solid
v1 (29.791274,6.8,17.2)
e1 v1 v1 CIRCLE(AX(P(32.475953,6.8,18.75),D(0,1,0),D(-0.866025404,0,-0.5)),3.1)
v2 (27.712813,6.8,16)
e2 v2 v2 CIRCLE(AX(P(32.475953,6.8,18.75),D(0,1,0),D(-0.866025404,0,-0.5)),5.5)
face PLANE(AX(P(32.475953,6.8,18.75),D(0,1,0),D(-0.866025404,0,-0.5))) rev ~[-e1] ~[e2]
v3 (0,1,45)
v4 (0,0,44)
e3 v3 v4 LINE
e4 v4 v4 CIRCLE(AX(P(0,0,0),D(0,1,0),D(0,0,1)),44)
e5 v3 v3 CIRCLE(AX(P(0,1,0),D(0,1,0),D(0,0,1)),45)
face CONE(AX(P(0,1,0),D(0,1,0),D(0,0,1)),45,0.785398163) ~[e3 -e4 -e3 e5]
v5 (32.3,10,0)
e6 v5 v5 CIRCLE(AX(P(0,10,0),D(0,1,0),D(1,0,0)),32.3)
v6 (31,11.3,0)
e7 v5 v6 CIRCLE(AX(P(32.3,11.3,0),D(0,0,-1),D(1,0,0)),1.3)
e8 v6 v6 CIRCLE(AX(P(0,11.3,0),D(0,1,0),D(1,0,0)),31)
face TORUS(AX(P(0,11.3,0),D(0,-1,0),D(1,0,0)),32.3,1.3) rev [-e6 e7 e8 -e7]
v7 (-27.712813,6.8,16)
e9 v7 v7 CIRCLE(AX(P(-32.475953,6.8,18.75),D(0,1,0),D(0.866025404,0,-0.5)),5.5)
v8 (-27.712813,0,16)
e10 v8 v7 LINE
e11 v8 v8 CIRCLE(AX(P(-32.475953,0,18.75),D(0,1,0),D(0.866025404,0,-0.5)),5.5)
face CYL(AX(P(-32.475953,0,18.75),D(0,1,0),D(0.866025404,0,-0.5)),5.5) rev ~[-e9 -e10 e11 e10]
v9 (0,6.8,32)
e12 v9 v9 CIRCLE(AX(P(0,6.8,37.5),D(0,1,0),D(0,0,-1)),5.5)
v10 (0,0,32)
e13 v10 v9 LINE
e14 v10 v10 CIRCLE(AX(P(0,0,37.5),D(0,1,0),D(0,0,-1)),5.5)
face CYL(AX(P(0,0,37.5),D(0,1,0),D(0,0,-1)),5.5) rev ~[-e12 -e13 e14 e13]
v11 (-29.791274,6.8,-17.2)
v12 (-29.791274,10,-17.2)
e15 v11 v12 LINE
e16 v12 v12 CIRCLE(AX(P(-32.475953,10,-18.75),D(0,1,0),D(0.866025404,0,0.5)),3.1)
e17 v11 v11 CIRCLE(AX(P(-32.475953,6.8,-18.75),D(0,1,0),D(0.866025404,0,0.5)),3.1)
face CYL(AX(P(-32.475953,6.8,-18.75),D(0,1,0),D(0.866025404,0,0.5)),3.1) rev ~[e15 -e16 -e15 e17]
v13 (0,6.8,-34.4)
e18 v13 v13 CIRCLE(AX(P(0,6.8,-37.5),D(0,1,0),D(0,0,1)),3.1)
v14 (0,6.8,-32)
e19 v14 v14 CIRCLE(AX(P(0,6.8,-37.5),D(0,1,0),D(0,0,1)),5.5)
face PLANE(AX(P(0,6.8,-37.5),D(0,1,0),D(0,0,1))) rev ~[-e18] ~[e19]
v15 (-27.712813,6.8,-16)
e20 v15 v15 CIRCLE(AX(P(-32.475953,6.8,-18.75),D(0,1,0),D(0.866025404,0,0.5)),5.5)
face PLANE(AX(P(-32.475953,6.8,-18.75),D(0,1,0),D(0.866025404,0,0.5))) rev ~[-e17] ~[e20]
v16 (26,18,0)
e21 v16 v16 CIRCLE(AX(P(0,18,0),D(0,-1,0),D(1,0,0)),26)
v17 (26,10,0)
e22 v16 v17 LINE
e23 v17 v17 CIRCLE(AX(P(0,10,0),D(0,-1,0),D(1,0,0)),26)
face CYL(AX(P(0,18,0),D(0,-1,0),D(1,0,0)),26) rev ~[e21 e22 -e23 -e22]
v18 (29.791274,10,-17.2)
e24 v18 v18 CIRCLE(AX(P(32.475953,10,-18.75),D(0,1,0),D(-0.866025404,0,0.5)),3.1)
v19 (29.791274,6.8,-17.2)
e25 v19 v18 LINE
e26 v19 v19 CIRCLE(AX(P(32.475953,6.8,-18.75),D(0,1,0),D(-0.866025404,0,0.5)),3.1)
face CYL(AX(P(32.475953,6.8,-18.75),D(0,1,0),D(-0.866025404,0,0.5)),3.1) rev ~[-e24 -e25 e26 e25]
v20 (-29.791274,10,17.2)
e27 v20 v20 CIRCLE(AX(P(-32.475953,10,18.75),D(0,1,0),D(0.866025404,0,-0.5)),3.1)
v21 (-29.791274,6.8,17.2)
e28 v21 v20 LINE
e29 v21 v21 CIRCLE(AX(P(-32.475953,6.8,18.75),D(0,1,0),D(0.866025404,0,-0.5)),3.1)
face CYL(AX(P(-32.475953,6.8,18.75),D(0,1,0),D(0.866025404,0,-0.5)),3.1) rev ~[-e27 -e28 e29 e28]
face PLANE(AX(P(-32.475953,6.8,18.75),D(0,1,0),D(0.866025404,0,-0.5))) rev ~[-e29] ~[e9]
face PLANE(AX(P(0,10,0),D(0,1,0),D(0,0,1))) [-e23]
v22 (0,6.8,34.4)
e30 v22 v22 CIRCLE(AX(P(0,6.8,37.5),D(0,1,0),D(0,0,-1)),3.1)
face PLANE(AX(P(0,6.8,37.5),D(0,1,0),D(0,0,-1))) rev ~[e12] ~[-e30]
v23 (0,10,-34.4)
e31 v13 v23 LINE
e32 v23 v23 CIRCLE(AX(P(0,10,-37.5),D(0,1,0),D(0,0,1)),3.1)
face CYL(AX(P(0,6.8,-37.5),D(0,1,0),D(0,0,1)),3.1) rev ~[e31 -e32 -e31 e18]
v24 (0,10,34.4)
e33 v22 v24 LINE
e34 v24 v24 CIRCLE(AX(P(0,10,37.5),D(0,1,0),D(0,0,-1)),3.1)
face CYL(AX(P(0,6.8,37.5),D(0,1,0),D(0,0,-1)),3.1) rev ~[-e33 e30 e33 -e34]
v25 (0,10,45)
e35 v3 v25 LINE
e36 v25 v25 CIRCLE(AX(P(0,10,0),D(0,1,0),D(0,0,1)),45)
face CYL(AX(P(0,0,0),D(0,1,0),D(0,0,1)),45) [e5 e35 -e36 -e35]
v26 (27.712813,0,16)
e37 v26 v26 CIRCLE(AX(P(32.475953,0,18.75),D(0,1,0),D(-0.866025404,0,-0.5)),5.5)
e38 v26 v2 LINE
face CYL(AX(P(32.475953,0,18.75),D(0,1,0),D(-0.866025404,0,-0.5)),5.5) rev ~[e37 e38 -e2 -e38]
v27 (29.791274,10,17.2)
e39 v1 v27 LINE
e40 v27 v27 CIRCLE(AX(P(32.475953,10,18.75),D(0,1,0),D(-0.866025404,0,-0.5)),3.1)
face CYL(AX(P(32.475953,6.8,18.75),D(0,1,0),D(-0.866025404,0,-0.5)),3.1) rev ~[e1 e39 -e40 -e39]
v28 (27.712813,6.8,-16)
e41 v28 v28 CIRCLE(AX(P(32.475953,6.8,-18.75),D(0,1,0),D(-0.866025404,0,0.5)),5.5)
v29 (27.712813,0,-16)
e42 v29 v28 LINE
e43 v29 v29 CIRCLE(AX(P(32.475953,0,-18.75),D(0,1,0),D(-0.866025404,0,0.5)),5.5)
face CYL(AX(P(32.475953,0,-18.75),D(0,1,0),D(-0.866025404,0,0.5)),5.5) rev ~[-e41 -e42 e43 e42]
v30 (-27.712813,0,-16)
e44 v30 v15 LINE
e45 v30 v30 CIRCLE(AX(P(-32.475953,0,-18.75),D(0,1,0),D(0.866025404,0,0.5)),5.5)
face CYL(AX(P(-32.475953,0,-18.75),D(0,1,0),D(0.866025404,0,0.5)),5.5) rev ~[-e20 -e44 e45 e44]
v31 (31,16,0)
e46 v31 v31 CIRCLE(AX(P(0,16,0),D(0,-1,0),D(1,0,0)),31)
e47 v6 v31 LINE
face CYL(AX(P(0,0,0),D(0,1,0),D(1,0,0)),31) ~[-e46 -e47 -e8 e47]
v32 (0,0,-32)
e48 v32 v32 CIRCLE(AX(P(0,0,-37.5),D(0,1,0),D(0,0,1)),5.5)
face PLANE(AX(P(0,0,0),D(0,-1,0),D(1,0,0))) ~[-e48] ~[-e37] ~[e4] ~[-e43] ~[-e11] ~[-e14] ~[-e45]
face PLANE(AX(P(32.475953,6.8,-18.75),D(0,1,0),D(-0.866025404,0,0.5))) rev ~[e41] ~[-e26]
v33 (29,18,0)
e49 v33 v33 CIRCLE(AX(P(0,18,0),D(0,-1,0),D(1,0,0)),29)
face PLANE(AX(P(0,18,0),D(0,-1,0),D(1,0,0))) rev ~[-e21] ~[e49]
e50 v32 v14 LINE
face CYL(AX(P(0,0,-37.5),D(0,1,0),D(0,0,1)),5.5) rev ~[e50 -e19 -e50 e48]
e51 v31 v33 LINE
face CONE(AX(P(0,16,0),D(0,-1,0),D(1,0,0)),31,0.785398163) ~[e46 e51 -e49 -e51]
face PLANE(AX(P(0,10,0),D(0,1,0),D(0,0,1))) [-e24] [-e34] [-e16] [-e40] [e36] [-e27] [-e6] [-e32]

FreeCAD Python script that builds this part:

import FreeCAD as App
import Part
import Sketcher


def edges_at(feature, points):
    """Names of the edges that pass closest to the given points."""
    edges = feature.Shape.Edges
    near = lambda p: min(range(len(edges)), key=lambda i: edges[i].distToShape(Part.Vertex(*p))[0])
    return sorted({f"Edge{near(p) + 1}" for p in points})

doc = App.newDocument("Part")
body = doc.addObject("PartDesign::Body", "Body")

sketch1 = doc.addObject("Sketcher::SketchObject", "Sketch")
body.addObject(sketch1)
sketch1.AttachmentSupport = (doc.XY_Plane, [""])
sketch1.MapMode = "FlatFace"
sketch1.addGeometry(Part.LineSegment(App.Vector(26, 5, 0), App.Vector(0, 5, 0)), False)
sketch1.addGeometry(Part.LineSegment(App.Vector(0, 5, 0), App.Vector(0, 0, 0)), False)
sketch1.addGeometry(Part.LineSegment(App.Vector(0, 0, 0), App.Vector(31, 0, 0)), False)
sketch1.addGeometry(Part.LineSegment(App.Vector(31, 0, 0), App.Vector(31, 18, 0)), False)
sketch1.addGeometry(Part.LineSegment(App.Vector(31, 18, 0), App.Vector(26, 18, 0)), False)
sketch1.addGeometry(Part.LineSegment(App.Vector(26, 18, 0), App.Vector(26, 5, 0)), False)
sketch1.addConstraint(Sketcher.Constraint("Coincident", 0, 2, 1, 1))
sketch1.addConstraint(Sketcher.Constraint("Coincident", 1, 2, 2, 1))
sketch1.addConstraint(Sketcher.Constraint("Coincident", 2, 2, 3, 1))
sketch1.addConstraint(Sketcher.Constraint("Coincident", 3, 2, 4, 1))
sketch1.addConstraint(Sketcher.Constraint("Coincident", 4, 2, 5, 1))
sketch1.addConstraint(Sketcher.Constraint("Coincident", 5, 2, 0, 1))
sketch1.addConstraint(Sketcher.Constraint("Horizontal", 0))
sketch1.addConstraint(Sketcher.Constraint("Vertical", 1))
sketch1.addConstraint(Sketcher.Constraint("Horizontal", 2))
sketch1.addConstraint(Sketcher.Constraint("Vertical", 3))
sketch1.addConstraint(Sketcher.Constraint("Horizontal", 4))
sketch1.addConstraint(Sketcher.Constraint("Vertical", 5))
sketch1.addConstraint(Sketcher.Constraint("Coincident", 1, 2, -1, 1))
sketch1.addConstraint(Sketcher.Constraint("Equal", 4, 1))
sketch1.addConstraint(Sketcher.Constraint("DistanceX", 2, 1, 2, 2, 31.0))
sketch1.addConstraint(Sketcher.Constraint("DistanceX", 4, 2, 4, 1, 5.0))
sketch1.addConstraint(Sketcher.Constraint("DistanceY", 3, 1, 3, 2, 18.0))
revolution = doc.addObject("PartDesign::Revolution", "Revolution")
body.addObject(revolution)
revolution.Profile = sketch1
revolution.ReferenceAxis = (sketch1, ["V_Axis"])
revolution.Angle = 360

sketch2 = doc.addObject("Sketcher::SketchObject", "Sketch001")
body.addObject(sketch2)
sketch2.AttachmentSupport = (doc.YZ_Plane, [""])
sketch2.MapMode = "FlatFace"
sketch2.addGeometry(Part.LineSegment(App.Vector(10, 0, 0), App.Vector(10, 45, 0)), False)
sketch2.addGeometry(Part.LineSegment(App.Vector(10, 45, 0), App.Vector(0, 45, 0)), False)
sketch2.addGeometry(Part.LineSegment(App.Vector(0, 45, 0), App.Vector(0, 0, 0)), False)
sketch2.addGeometry(Part.LineSegment(App.Vector(0, 0, 0), App.Vector(10, 0, 0)), False)
sketch2.addConstraint(Sketcher.Constraint("Coincident", 0, 2, 1, 1))
sketch2.addConstraint(Sketcher.Constraint("Coincident", 1, 2, 2, 1))
sketch2.addConstraint(Sketcher.Constraint("Coincident", 2, 2, 3, 1))
sketch2.addConstraint(Sketcher.Constraint("Coincident", 3, 2, 0, 1))
sketch2.addConstraint(Sketcher.Constraint("Vertical", 0))
sketch2.addConstraint(Sketcher.Constraint("Horizontal", 1))
sketch2.addConstraint(Sketcher.Constraint("Vertical", 2))
sketch2.addConstraint(Sketcher.Constraint("Horizontal", 3))
sketch2.addConstraint(Sketcher.Constraint("Coincident", 2, 2, -1, 1))
sketch2.addConstraint(Sketcher.Constraint("DistanceX", 1, 2, 1, 1, 10.0))
sketch2.addConstraint(Sketcher.Constraint("DistanceY", 0, 1, 0, 2, 45.0))
revolution2 = doc.addObject("PartDesign::Revolution", "Revolution001")
body.addObject(revolution2)
revolution2.Profile = sketch2
revolution2.ReferenceAxis = (sketch2, ["H_Axis"])
revolution2.Angle = 360

sketch3 = doc.addObject("Sketcher::SketchObject", "Sketch002")
body.addObject(sketch3)
sketch3.AttachmentSupport = (doc.XZ_Plane, [""])
sketch3.MapMode = "FlatFace"
sketch3.addGeometry(Part.Circle(App.Vector(0, 37.5, 0), App.Vector(0, 0, 1), 3.1), False)
sketch3.addConstraint(Sketcher.Constraint("PointOnObject", 0, 3, -2))
sketch3.addConstraint(Sketcher.Constraint("Diameter", 0, 6.2))
sketch3.addConstraint(Sketcher.Constraint("DistanceY", -1, 1, 0, 3, 37.5))
doc.recompute()
hole = doc.addObject("PartDesign::Hole", "Hole")
body.addObject(hole)
hole.Profile = sketch3
hole.ThreadType = "None"
hole.Diameter = 6.2
hole.DepthType = "Dimension"
hole.Depth = 15
hole.DrillPoint = "Angled"
hole.DrillPointAngle = 118
hole.HoleCutType = "Counterbore"
hole.HoleCutDiameter = 11
hole.HoleCutDepth = 6.8
doc.recompute()

polarpattern = doc.addObject("PartDesign::PolarPattern", "PolarPattern")
body.addObject(polarpattern)
polarpattern.Originals = [hole]
polarpattern.Axis = (doc.Y_Axis, [""])
polarpattern.Angle = 360
polarpattern.Occurrences = 6
body.Tip = polarpattern
doc.recompute()

fillet = doc.addObject("PartDesign::Fillet", "Fillet")
body.addObject(fillet)
fillet.Base = (polarpattern, edges_at(polarpattern, [(-31, 10, 0)]))
fillet.Radius = 1.3
doc.recompute()

chamfer = doc.addObject("PartDesign::Chamfer", "Chamfer")
body.addObject(chamfer)
chamfer.Base = (fillet, edges_at(fillet, [(0, 0, -45)]))
chamfer.Size = 1
doc.recompute()

chamfer2 = doc.addObject("PartDesign::Chamfer", "Chamfer001")
body.addObject(chamfer2)
chamfer2.Base = (chamfer, edges_at(chamfer, [(-31, 18, 0)]))
chamfer2.Size = 2

doc.recompute()
